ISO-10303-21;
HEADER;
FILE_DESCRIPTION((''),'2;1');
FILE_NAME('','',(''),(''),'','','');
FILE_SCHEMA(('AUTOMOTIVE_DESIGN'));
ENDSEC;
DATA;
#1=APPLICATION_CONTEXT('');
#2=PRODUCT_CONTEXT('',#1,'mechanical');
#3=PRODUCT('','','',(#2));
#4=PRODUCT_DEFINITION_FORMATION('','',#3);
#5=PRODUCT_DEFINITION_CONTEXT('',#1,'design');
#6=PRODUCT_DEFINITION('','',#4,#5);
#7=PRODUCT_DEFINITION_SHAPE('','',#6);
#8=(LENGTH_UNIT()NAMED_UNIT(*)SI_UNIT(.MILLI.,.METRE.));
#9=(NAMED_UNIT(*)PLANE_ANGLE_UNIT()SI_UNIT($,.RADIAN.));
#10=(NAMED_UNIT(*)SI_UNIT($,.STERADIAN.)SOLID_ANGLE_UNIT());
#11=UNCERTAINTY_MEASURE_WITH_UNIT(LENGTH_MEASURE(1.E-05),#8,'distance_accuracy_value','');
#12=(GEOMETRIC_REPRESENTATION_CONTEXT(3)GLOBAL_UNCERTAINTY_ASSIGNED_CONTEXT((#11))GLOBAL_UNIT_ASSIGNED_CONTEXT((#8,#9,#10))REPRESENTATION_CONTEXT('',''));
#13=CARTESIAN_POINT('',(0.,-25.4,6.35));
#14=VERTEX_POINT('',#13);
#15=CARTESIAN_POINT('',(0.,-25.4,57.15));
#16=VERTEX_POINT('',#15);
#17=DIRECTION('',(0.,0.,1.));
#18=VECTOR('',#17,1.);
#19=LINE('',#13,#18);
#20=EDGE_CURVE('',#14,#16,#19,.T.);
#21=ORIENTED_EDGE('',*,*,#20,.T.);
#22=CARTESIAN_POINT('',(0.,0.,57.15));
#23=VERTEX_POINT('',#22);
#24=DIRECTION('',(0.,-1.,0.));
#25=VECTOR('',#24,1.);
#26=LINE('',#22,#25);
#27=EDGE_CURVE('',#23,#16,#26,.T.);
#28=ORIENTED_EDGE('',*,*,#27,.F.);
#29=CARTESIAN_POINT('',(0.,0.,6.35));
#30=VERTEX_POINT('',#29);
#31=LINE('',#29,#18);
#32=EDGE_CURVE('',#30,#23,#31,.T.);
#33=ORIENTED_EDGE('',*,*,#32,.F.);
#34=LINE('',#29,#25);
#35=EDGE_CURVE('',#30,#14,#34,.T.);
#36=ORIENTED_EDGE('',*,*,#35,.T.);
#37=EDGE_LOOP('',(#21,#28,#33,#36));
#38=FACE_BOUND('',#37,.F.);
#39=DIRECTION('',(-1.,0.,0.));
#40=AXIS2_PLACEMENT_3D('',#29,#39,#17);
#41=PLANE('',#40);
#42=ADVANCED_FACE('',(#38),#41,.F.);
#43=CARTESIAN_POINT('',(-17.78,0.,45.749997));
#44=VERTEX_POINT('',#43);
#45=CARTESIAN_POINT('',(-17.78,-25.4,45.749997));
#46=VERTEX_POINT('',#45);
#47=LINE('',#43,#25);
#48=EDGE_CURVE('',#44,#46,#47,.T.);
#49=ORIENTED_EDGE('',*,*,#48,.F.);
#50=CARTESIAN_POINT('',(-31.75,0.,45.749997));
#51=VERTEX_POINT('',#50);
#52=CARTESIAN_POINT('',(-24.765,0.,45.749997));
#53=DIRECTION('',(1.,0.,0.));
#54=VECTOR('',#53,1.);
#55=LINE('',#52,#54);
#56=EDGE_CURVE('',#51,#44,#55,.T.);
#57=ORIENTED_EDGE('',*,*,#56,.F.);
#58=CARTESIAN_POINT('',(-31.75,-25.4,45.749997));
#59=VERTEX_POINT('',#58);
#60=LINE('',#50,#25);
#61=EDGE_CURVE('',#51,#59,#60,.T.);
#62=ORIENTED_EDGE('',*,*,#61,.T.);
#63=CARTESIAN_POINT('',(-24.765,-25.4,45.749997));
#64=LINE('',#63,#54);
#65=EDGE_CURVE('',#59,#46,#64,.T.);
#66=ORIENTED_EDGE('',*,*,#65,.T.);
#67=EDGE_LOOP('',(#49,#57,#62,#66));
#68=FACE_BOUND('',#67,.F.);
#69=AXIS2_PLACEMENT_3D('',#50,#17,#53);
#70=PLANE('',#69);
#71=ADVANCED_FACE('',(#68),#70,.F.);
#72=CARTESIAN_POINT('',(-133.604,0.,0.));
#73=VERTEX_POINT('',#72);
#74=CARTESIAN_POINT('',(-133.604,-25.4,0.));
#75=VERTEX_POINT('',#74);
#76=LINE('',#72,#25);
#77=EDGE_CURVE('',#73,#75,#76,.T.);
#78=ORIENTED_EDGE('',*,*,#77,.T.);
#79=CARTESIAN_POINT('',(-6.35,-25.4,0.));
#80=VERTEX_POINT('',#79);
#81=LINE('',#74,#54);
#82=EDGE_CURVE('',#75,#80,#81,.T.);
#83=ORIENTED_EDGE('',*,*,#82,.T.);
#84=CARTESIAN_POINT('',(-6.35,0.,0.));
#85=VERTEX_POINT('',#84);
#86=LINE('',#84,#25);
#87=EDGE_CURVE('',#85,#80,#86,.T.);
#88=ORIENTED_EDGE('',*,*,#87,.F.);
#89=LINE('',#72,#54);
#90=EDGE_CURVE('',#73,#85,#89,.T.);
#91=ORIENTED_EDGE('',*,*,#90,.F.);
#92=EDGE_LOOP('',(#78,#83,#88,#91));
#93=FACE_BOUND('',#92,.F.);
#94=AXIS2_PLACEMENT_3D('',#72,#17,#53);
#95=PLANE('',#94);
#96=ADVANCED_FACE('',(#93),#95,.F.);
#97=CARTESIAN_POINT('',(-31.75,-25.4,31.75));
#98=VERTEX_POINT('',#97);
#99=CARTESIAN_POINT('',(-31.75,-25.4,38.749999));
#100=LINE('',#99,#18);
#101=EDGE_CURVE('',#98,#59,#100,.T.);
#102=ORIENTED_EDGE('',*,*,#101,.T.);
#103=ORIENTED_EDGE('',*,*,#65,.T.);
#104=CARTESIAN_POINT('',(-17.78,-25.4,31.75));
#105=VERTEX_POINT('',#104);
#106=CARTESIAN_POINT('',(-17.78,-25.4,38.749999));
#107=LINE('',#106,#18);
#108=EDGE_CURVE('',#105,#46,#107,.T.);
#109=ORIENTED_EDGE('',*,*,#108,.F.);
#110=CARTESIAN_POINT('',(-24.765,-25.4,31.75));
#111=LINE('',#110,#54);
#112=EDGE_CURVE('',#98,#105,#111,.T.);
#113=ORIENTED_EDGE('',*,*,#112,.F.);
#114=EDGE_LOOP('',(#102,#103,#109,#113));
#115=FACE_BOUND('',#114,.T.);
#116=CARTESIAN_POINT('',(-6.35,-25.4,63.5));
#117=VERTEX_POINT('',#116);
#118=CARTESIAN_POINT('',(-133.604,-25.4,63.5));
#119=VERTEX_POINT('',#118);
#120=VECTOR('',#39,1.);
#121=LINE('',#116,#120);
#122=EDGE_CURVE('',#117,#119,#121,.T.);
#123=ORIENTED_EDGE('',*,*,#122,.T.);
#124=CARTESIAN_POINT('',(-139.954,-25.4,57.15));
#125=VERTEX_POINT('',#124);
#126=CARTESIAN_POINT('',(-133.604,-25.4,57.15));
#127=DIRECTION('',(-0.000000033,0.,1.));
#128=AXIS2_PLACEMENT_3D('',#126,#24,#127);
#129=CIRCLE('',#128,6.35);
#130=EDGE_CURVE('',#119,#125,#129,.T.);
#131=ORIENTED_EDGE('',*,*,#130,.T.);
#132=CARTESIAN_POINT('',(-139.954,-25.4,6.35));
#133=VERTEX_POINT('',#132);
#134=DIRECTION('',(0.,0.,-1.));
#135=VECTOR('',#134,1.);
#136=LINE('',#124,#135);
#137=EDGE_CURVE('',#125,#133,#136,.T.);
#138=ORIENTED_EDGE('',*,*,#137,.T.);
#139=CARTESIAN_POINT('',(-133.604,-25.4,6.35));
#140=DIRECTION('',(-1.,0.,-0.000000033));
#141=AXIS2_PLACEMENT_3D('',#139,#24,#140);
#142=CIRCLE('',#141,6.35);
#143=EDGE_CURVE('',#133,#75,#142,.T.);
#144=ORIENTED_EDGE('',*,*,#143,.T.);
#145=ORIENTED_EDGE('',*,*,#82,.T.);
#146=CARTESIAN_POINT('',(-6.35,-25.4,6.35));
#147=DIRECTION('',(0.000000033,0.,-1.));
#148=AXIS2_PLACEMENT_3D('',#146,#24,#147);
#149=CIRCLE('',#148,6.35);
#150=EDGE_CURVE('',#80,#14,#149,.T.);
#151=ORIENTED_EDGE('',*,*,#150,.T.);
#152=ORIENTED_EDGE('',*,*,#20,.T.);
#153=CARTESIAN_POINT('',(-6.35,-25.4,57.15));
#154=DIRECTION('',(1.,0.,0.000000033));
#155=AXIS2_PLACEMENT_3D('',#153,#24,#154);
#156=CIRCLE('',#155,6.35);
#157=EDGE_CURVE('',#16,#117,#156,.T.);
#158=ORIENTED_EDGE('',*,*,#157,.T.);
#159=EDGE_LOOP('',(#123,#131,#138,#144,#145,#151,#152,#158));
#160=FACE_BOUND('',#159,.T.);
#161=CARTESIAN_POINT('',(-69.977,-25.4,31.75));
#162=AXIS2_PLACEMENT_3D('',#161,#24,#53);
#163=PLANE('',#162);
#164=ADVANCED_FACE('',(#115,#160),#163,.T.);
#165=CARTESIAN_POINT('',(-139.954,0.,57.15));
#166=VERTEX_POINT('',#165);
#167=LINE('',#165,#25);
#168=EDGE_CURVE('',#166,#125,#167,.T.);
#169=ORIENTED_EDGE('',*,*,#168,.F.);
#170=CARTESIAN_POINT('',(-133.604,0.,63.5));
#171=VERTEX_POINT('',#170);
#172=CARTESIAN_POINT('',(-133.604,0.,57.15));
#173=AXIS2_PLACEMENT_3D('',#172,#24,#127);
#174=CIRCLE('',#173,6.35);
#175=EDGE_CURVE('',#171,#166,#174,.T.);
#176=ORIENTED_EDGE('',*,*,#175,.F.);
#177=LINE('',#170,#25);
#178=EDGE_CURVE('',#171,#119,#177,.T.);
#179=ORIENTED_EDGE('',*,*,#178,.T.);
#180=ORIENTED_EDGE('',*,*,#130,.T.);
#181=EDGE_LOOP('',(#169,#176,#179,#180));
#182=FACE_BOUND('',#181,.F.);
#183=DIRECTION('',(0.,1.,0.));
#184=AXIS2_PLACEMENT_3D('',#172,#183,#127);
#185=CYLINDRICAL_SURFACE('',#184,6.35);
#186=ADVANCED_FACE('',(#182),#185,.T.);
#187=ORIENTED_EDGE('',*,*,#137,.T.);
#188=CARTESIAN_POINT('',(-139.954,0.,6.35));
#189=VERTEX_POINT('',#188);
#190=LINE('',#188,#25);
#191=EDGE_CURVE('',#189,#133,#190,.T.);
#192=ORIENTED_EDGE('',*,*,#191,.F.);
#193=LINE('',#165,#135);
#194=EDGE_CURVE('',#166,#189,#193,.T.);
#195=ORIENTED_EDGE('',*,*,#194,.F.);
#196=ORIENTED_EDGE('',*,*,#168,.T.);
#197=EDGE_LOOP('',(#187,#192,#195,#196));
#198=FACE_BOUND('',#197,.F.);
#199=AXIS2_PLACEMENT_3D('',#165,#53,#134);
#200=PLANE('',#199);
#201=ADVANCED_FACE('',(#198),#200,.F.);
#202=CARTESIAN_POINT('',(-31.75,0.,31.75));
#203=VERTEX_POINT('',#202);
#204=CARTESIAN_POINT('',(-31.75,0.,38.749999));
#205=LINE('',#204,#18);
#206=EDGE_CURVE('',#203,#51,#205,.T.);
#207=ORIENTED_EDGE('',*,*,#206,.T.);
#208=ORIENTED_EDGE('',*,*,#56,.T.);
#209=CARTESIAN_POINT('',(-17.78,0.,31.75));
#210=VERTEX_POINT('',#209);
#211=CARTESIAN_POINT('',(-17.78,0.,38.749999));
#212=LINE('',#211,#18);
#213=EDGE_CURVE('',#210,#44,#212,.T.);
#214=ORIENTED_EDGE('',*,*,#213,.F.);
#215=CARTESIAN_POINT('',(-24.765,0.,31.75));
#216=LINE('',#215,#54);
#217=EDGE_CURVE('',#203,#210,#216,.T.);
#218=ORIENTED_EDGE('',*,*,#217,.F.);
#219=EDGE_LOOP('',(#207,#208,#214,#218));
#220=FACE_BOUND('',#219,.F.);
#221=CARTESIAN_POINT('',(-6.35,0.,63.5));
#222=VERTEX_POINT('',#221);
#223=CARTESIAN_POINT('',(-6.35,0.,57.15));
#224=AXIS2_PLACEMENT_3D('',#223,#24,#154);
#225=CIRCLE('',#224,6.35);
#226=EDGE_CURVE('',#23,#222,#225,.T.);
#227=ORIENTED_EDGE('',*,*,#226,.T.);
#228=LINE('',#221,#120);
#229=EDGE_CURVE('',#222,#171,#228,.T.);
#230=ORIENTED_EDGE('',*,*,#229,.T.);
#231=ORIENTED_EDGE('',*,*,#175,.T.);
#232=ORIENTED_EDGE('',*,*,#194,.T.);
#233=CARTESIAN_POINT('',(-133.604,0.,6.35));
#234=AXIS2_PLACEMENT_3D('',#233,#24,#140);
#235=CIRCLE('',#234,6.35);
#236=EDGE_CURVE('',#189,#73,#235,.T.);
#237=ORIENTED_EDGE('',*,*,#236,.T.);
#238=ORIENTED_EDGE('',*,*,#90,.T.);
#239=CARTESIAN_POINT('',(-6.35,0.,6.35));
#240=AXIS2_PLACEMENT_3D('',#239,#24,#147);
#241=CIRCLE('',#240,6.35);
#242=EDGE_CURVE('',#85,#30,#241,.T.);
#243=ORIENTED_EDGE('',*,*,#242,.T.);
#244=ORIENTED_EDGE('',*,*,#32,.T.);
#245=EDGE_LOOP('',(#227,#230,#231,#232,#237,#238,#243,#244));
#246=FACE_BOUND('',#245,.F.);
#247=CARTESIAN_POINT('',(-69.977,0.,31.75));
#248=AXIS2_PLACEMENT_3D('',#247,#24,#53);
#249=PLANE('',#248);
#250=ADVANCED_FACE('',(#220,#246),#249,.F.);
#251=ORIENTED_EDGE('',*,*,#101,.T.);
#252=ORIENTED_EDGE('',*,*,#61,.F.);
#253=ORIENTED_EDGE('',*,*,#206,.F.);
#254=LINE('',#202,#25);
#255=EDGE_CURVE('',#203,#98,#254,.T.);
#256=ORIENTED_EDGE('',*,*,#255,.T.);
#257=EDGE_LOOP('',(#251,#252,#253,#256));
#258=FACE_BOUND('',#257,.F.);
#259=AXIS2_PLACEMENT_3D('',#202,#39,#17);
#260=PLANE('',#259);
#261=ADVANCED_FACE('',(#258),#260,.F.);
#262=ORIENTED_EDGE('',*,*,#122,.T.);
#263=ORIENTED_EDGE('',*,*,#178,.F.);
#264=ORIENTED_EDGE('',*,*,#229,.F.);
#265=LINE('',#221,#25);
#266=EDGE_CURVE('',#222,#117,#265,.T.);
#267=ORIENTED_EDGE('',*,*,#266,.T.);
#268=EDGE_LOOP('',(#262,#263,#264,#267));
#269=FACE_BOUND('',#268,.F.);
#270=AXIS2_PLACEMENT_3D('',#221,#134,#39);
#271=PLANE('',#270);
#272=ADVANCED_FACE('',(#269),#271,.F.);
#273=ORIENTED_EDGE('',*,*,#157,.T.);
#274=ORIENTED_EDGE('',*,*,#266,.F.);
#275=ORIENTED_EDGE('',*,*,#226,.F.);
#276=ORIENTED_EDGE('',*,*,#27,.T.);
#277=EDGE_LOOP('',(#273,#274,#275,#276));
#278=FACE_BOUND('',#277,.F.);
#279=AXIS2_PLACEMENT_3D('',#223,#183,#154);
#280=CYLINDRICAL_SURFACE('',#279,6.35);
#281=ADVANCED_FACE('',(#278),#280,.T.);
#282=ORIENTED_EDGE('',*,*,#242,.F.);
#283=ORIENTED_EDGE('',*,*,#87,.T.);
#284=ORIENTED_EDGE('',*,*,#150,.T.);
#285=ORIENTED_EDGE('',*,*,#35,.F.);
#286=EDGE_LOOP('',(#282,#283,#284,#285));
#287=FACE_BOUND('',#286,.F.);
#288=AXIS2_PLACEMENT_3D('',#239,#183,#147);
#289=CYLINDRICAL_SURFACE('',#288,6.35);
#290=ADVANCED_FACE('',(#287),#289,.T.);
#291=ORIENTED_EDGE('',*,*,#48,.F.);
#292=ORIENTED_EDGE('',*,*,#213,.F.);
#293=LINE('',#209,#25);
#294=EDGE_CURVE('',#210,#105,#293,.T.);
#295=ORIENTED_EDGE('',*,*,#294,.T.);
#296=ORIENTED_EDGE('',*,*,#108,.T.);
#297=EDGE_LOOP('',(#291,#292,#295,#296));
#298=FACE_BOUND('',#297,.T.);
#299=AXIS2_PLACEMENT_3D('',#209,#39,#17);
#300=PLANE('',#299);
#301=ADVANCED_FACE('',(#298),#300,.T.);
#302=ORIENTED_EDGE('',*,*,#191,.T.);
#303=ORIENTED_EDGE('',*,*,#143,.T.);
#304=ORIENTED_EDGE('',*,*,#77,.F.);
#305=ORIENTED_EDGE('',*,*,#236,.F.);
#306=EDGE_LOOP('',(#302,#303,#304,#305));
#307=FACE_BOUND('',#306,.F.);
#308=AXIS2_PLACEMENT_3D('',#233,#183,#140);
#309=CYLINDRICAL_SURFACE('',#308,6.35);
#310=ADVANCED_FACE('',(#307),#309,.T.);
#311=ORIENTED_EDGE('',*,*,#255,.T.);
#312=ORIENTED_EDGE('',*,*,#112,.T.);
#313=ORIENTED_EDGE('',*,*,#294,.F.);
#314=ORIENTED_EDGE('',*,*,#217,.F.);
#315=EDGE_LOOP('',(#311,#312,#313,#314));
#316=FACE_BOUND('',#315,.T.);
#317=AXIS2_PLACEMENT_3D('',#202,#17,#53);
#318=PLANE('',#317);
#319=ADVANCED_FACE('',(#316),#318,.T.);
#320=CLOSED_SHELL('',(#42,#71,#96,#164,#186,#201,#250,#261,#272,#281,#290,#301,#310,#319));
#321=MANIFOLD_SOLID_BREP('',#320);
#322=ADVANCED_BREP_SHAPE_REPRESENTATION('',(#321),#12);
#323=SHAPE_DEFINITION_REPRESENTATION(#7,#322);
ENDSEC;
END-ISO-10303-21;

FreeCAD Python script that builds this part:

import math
import FreeCAD as App
import Part
import Sketcher

V = App.Vector
Q = App.Units.Quantity


def add_polygon(sketch, points):
    """Adds a closed chain of lines whose ends are joined by coincident constraints."""
    first, n = sketch.GeometryCount, len(points)
    for a, b in zip(points, points[1:] + points[:1]):
        sketch.addGeometry(Part.LineSegment(App.Vector(*a, 0), App.Vector(*b, 0)), False)
    for i in range(n):
        sketch.addConstraint(Sketcher.Constraint("Coincident", first + i, 2, first + (i + 1) % n, 1))

doc = App.newDocument("Part")
body = doc.addObject("PartDesign::Body", "Body")

sketch1 = body.newObject("Sketcher::SketchObject", "Sketch")
sketch1.AttachmentSupport = (doc.getObject("XZ_Plane"), [""])
sketch1.MapMode = "FlatFace"
sketch1.addGeometry(Part.LineSegment(V(-134, 0, 0), V(-6, 0, 0)), False)
sketch1.addGeometry(Part.ArcOfCircle(Part.Circle(V(-6, 6, 0), V(0, 0, 1), 6), math.radians(-90), math.radians(0)), False)
sketch1.addGeometry(Part.LineSegment(V(0, 6, 0), V(0, 57, 0)), False)
sketch1.addGeometry(Part.ArcOfCircle(Part.Circle(V(-6, 57, 0), V(0, 0, 1), 6), math.radians(0), math.radians(90)), False)
sketch1.addGeometry(Part.LineSegment(V(-6, 64, 0), V(-134, 64, 0)), False)
sketch1.addGeometry(Part.ArcOfCircle(Part.Circle(V(-134, 57, 0), V(0, 0, 1), 6), math.radians(90), math.radians(180)), False)
sketch1.addGeometry(Part.LineSegment(V(-140, 57, 0), V(-140, 6, 0)), False)
sketch1.addGeometry(Part.ArcOfCircle(Part.Circle(V(-134, 6, 0), V(0, 0, 1), 6), math.radians(-180), math.radians(-90)), False)
add_polygon(sketch1, [(-18, 32), (-32, 32), (-32, 46), (-18, 46)])
sketch1.addConstraint([
    Sketcher.Constraint("Tangent", 0, 2, 1, 1),
    Sketcher.Constraint("Tangent", 1, 2, 2, 1),
    Sketcher.Constraint("Tangent", 2, 2, 3, 1),
    Sketcher.Constraint("Tangent", 3, 2, 4, 1),
    Sketcher.Constraint("Tangent", 4, 2, 5, 1),
    Sketcher.Constraint("Tangent", 5, 2, 6, 1),
    Sketcher.Constraint("Tangent", 6, 2, 7, 1),
    Sketcher.Constraint("Tangent", 7, 2, 0, 1),
    Sketcher.Constraint("Horizontal", 0),
    Sketcher.Constraint("Vertical", 2),
    Sketcher.Constraint("Horizontal", 4),
    Sketcher.Constraint("Vertical", 6),
    Sketcher.Constraint("Horizontal", 8),
    Sketcher.Constraint("Vertical", 9),
    Sketcher.Constraint("Horizontal", 10),
    Sketcher.Constraint("Vertical", 11),
    Sketcher.Constraint("Equal", 1, 3),
    Sketcher.Constraint("Equal", 3, 5),
    Sketcher.Constraint("Equal", 5, 7),
    Sketcher.Constraint("PointOnObject", 0, 2, -1),
    Sketcher.Constraint("PointOnObject", 1, 2, -2),
    Sketcher.Constraint("DistanceY", 2, 1, 2, 2, Q("2 in")),
    Sketcher.Constraint("Radius", 1, Q("0.25 in")),
    Sketcher.Constraint("DistanceX", 8, 2, 3, 3, Q("1 in")),
    Sketcher.Constraint("DistanceY", 8, 2, 3, 3, Q("1 in")),
    Sketcher.Constraint("DistanceX", 0, 1, 0, 2, Q("5.01 in")),
    Sketcher.Constraint("DistanceX", 8, 2, 8, 1, Q("0.55 in")),
    Sketcher.Constraint("DistanceY", 9, 1, 9, 2, 13.999997),
])
pad1 = body.newObject("PartDesign::Pad", "Pad")
pad1.Profile = sketch1
pad1.Length = Q("1 in")

doc.recompute()
